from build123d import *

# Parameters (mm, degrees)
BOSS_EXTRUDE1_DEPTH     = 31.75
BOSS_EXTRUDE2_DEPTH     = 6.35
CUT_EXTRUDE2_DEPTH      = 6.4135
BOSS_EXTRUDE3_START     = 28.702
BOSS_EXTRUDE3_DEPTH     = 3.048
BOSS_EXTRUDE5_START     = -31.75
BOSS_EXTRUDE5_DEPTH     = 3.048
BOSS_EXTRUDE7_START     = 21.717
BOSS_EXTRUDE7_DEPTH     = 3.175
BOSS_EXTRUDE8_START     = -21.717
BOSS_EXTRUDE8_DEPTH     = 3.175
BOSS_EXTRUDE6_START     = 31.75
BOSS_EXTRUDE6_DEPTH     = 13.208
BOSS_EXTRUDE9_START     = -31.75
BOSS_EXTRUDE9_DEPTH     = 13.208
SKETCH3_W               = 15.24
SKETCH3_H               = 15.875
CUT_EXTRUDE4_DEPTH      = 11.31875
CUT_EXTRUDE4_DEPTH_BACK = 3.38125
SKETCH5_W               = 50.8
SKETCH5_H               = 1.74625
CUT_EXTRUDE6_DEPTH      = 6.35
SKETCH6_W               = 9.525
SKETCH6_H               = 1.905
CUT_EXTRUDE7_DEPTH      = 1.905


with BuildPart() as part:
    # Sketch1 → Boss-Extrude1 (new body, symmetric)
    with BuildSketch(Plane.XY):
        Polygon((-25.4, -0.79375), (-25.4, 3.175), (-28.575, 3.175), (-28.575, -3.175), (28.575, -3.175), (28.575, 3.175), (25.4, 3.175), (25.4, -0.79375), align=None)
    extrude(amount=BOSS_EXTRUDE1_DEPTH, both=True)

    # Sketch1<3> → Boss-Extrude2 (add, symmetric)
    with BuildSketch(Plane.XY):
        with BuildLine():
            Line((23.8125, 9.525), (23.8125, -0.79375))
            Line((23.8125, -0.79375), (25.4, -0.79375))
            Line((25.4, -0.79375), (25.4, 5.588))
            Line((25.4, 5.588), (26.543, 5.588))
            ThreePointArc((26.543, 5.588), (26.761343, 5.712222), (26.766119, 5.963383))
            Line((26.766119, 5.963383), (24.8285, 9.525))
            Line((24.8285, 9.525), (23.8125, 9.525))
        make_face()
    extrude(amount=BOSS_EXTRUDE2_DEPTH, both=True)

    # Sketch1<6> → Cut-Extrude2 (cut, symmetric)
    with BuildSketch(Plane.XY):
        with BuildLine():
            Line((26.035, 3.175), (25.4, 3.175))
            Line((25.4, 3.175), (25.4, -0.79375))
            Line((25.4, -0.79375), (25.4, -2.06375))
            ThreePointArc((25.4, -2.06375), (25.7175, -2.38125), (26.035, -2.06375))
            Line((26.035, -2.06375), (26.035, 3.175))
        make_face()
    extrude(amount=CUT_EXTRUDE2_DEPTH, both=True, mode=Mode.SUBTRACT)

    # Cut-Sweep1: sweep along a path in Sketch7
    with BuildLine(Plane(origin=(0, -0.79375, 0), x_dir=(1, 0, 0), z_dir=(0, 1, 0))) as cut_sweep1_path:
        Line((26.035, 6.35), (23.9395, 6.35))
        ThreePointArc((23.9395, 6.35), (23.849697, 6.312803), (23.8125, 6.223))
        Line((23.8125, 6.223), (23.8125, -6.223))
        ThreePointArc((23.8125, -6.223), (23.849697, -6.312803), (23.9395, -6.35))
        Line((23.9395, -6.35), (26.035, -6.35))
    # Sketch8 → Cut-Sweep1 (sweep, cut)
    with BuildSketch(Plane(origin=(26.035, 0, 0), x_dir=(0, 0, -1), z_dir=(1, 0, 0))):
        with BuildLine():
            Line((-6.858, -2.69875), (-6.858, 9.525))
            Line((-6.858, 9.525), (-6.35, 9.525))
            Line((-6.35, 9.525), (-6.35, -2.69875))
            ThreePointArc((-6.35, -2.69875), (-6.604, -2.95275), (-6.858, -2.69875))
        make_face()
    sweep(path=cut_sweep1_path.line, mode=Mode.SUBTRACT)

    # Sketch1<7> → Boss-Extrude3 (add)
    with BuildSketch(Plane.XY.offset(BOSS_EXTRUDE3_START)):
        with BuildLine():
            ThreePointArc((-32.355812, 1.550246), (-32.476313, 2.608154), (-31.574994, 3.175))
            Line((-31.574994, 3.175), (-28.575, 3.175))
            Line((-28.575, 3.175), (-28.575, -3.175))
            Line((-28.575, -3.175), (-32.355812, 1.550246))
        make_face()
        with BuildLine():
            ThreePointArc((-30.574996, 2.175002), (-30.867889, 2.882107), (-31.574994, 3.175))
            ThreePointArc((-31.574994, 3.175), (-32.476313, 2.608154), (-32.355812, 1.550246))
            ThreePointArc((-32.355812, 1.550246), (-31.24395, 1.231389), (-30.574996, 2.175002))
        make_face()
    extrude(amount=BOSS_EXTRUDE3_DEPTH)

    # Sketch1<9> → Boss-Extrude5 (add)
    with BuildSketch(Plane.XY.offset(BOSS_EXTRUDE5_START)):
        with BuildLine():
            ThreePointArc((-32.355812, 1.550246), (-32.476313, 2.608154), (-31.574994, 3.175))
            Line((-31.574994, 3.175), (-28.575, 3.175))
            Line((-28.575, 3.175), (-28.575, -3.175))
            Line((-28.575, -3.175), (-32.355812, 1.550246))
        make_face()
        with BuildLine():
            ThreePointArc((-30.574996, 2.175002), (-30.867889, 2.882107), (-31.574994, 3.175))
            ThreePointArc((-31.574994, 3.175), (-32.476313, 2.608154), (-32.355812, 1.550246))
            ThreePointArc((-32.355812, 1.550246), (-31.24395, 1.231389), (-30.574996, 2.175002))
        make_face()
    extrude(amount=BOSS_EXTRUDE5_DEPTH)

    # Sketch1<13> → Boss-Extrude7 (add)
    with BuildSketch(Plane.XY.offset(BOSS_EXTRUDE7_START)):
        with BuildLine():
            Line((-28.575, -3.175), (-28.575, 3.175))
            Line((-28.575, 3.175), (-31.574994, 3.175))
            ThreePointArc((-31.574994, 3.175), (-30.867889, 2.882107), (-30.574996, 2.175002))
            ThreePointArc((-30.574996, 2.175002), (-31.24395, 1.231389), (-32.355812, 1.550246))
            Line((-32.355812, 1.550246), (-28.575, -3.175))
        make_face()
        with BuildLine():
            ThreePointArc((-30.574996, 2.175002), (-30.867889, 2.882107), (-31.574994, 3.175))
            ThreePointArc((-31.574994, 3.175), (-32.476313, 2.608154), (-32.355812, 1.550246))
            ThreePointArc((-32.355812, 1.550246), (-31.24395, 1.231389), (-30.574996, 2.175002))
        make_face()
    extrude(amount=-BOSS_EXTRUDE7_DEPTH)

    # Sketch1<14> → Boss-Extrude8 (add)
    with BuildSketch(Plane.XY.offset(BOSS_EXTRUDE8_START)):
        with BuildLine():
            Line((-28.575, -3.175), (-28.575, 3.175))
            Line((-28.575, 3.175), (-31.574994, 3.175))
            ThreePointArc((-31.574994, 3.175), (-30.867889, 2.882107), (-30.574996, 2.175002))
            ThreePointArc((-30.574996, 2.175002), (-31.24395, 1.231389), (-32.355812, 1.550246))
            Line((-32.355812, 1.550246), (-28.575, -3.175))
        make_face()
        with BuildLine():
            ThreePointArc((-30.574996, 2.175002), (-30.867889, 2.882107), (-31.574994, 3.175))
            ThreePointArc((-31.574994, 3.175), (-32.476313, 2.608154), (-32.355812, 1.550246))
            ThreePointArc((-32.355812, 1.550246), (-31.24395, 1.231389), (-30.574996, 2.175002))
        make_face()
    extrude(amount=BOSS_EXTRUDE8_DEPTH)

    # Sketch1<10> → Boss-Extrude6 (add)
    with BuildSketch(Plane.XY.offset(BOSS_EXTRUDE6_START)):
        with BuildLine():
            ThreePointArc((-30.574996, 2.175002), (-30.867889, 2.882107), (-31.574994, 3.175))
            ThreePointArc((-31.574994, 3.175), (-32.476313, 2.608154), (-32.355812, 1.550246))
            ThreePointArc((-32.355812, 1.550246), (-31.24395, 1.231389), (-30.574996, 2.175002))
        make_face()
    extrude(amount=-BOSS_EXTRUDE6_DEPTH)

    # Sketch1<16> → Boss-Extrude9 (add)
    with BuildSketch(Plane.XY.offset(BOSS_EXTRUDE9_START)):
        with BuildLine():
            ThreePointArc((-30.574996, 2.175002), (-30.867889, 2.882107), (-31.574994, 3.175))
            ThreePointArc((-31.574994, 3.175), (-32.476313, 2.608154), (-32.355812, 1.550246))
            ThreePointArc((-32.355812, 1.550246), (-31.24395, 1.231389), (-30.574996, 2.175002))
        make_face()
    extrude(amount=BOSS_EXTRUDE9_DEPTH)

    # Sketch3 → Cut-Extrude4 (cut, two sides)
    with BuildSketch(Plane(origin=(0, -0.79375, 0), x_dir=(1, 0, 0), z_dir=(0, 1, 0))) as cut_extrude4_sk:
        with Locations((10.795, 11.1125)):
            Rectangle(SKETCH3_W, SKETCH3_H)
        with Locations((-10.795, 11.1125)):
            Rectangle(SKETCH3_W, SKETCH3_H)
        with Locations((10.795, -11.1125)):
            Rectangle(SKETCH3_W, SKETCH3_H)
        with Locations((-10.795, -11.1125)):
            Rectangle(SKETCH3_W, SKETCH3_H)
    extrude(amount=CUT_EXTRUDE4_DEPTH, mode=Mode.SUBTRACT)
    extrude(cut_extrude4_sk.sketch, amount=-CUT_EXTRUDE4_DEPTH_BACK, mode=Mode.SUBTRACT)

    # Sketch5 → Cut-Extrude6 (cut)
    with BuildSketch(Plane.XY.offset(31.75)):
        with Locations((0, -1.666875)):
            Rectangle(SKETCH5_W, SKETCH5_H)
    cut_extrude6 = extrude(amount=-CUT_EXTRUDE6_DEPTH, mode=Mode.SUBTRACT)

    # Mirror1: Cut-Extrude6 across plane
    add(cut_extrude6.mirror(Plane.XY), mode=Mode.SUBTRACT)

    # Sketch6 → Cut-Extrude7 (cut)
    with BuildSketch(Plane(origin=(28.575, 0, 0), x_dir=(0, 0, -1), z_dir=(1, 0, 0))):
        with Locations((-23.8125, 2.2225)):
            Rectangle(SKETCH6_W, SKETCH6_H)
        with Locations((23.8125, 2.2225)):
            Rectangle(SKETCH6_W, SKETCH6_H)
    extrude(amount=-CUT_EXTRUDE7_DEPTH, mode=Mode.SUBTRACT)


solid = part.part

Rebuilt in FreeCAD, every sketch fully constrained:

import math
import FreeCAD as App
import Part
import Sketcher
Q = App.Units.Quantity


def add_polygon(sketch, points):
    """Adds a closed chain of lines whose ends are joined by coincident constraints."""
    first, n = sketch.GeometryCount, len(points)
    for a, b in zip(points, points[1:] + points[:1]):
        sketch.addGeometry(Part.LineSegment(App.Vector(*a, 0), App.Vector(*b, 0)), False)
    for i in range(n):
        sketch.addConstraint(Sketcher.Constraint("Coincident", first + i, 2, first + (i + 1) % n, 1))

doc = App.newDocument("Part")
body = doc.addObject("PartDesign::Body", "Body")

sketch1 = body.newObject("Sketcher::SketchObject", "Sketch")
sketch1.AttachmentSupport = (doc.getObject("XY_Plane"), [""])
sketch1.MapMode = "FlatFace"
add_polygon(sketch1, [(-25.4, -0.8), (-25.4, 3.2), (-28.6, 3.2), (-28.6, -3.2), (28.6, -3.2), (28.6, 3.2), (25.4, 3.2), (25.4, -0.8)])
sketch1.addConstraint([
    Sketcher.Constraint("Vertical", 0),
    Sketcher.Constraint("Horizontal", 1),
    Sketcher.Constraint("Vertical", 2),
    Sketcher.Constraint("Horizontal", 3),
    Sketcher.Constraint("Vertical", 4),
    Sketcher.Constraint("Horizontal", 5),
    Sketcher.Constraint("Vertical", 6),
    Sketcher.Constraint("Horizontal", 7),
    Sketcher.Constraint("Symmetric", 1, 2, 3, 2, -1, 1),
    Sketcher.Constraint("Symmetric", 0, 2, 5, 2, -2),
    Sketcher.Constraint("DistanceX", 7, 2, 7, 1, Q("2 in")),
    Sketcher.Constraint("DistanceX", 3, 1, 3, 2, Q("2.25 in")),
    Sketcher.Constraint("DistanceY", 2, 2, 2, 1, Q("0.25 in")),
    Sketcher.Constraint("DistanceY", 0, 1, 0, 2, Q("0.15625 in")),
])
pad1 = body.newObject("PartDesign::Pad", "Pad")
pad1.Profile = sketch1
pad1.Length = Q("2.5 in")
pad1.Midplane = True

sketch2 = body.newObject("Sketcher::SketchObject", "Sketch001")
sketch2.AttachmentSupport = (doc.getObject("XY_Plane"), [""])
sketch2.MapMode = "FlatFace"
sketch2.addGeometry([
    Part.LineSegment(App.Vector(23.81, 9.53, 0), App.Vector(23.81, -0.79, 0)),
    Part.LineSegment(App.Vector(23.81, -0.79, 0), App.Vector(25.4, -0.79, 0)),
    Part.LineSegment(App.Vector(25.4, -0.79, 0), App.Vector(25.4, 5.59, 0)),
    Part.LineSegment(App.Vector(25.4, 5.59, 0), App.Vector(26.54, 5.59, 0)),
    Part.ArcOfCircle(Part.Circle(App.Vector(26.54, 5.84, 0), App.Vector(0, 0, 1), 0.25), math.radians(-90), math.radians(29)),
    Part.LineSegment(App.Vector(26.77, 5.96, 0), App.Vector(24.83, 9.53, 0)),
    Part.LineSegment(App.Vector(24.83, 9.53, 0), App.Vector(23.81, 9.53, 0)),
], False)
sketch2.addConstraint([
    Sketcher.Constraint("Coincident", 0, 2, 1, 1),
    Sketcher.Constraint("Coincident", 1, 2, 2, 1),
    Sketcher.Constraint("Coincident", 2, 2, 3, 1),
    Sketcher.Constraint("Tangent", 3, 2, 4, 1),
    Sketcher.Constraint("Tangent", 4, 2, 5, 1),
    Sketcher.Constraint("Coincident", 5, 2, 6, 1),
    Sketcher.Constraint("Coincident", 6, 2, 0, 1),
    Sketcher.Constraint("Vertical", 0),
    Sketcher.Constraint("Horizontal", 1),
    Sketcher.Constraint("Vertical", 2),
    Sketcher.Constraint("Horizontal", 3),
    Sketcher.Constraint("Horizontal", 6),
    Sketcher.Constraint("Radius", 4, Q("0.01 in")),
    Sketcher.Constraint("DistanceX", -1, 1, 1, 2, Q("1 in")),
    Sketcher.Constraint("DistanceX", 6, 2, 6, 1, Q("0.04 in")),
    Sketcher.Constraint("DistanceX", 1, 1, 1, 2, Q("0.0625 in")),
    Sketcher.Constraint("DistanceX", 3, 1, 3, 2, Q("0.045 in")),
    Sketcher.Constraint("DistanceY", 0, 2, 0, 1, Q("0.40625 in")),
    Sketcher.Constraint("DistanceY", -1, 1, 4, 3, Q("0.23 in")),
    Sketcher.Constraint("DistanceY", 0, 2, -1, 1, Q("0.03125 in")),
])
pad2 = body.newObject("PartDesign::Pad", "Pad001")
pad2.Profile = sketch2
pad2.Length = Q("0.5 in")
pad2.Midplane = True

sketch3 = body.newObject("Sketcher::SketchObject", "Sketch002")
sketch3.AttachmentSupport = (doc.getObject("XY_Plane"), [""])
sketch3.MapMode = "FlatFace"
sketch3.addGeometry([
    Part.LineSegment(App.Vector(26.04, 3.17, 0), App.Vector(25.4, 3.17, 0)),
    Part.LineSegment(App.Vector(25.4, 3.17, 0), App.Vector(25.4, -2.06, 0)),
    Part.ArcOfCircle(Part.Circle(App.Vector(25.72, -2.06, 0), App.Vector(0, 0, 1), 0.32), math.radians(180), math.radians(360)),
    Part.LineSegment(App.Vector(26.04, -2.06, 0), App.Vector(26.04, 3.17, 0)),
], False)
sketch3.addConstraint([
    Sketcher.Constraint("Coincident", 0, 2, 1, 1),
    Sketcher.Constraint("Tangent", 1, 2, 2, 1),
    Sketcher.Constraint("Tangent", 2, 2, 3, 1),
    Sketcher.Constraint("Coincident", 3, 2, 0, 1),
    Sketcher.Constraint("Horizontal", 0),
    Sketcher.Constraint("Vertical", 1),
    Sketcher.Constraint("Vertical", 3),
    Sketcher.Constraint("DistanceX", -1, 1, 0, 2, Q("1 in")),
    Sketcher.Constraint("Radius", 2, Q("0.0125 in")),
    Sketcher.Constraint("DistanceY", -1, 1, 0, 2, Q("0.125 in")),
    Sketcher.Constraint("DistanceY", 1, 2, 1, 1, Q("5.23875 mm")),
])
pocket1 = body.newObject("PartDesign::Pocket", "Pocket")
pocket1.Profile = sketch3
pocket1.Length = Q("0.505 in")
pocket1.Midplane = True

sketch4 = body.newObject("Sketcher::SketchObject", "Sketch003")
sketch4.AttachmentSupport = (doc.getObject("YZ_Plane"), [""])
sketch4.MapMode = "FlatFace"
sketch4.AttachmentOffset = App.Placement(App.Vector(0, 0, 1.025 * 25.4), App.Rotation())
sketch4.addGeometry([
    Part.LineSegment(App.Vector(9.53, 6.86, 0), App.Vector(-2.7, 6.86, 0)),
    Part.ArcOfCircle(Part.Circle(App.Vector(-2.7, 6.6, 0), App.Vector(0, 0, 1), 0.25), math.radians(90), math.radians(270)),
    Part.LineSegment(App.Vector(-2.7, 6.35, 0), App.Vector(9.53, 6.35, 0)),
    Part.LineSegment(App.Vector(9.53, 6.35, 0), App.Vector(9.53, 6.86, 0)),
], False)
sketch4.addConstraint([
    Sketcher.Constraint("Tangent", 0, 2, 1, 1),
    Sketcher.Constraint("Tangent", 1, 2, 2, 1),
    Sketcher.Constraint("Coincident", 2, 2, 3, 1),
    Sketcher.Constraint("Coincident", 3, 2, 0, 1),
    Sketcher.Constraint("Horizontal", 0),
    Sketcher.Constraint("Horizontal", 2),
    Sketcher.Constraint("Vertical", 3),
    Sketcher.Constraint("Radius", 1, Q("0.01 in")),
    Sketcher.Constraint("DistanceY", -1, 1, 1, 3, Q("0.26 in")),
    Sketcher.Constraint("DistanceX", -1, 1, 2, 2, Q("0.375 in")),
    Sketcher.Constraint("DistanceX", 0, 2, 0, 1, Q("12.22375 mm")),
])

sketch5 = body.newObject("Sketcher::SketchObject", "Sketch004")
sketch5.AttachmentSupport = (doc.getObject("XZ_Plane"), [""])
sketch5.MapMode = "FlatFace"
sketch5.AttachmentOffset = App.Placement(App.Vector(0, 0, 0.03125 * 25.4), App.Rotation())
sketch5.addGeometry([
    Part.LineSegment(App.Vector(26.04, -6.35, 0), App.Vector(23.94, -6.35, 0)),
    Part.ArcOfCircle(Part.Circle(App.Vector(23.94, -6.22, 0), App.Vector(0, 0, 1), 0.13), math.radians(180), math.radians(270)),
    Part.LineSegment(App.Vector(23.81, -6.22, 0), App.Vector(23.81, 6.22, 0)),
    Part.ArcOfCircle(Part.Circle(App.Vector(23.94, 6.22, 0), App.Vector(0, 0, 1), 0.13), math.radians(90), math.radians(180)),
    Part.LineSegment(App.Vector(23.94, 6.35, 0), App.Vector(26.04, 6.35, 0)),
], False)
sketch5.addConstraint([
    Sketcher.Constraint("Coincident", 0, 2, 1, 2),
    Sketcher.Constraint("Coincident", 1, 1, 2, 1),
    Sketcher.Constraint("Coincident", 2, 2, 3, 2),
    Sketcher.Constraint("Coincident", 3, 1, 4, 1),
    Sketcher.Constraint("Horizontal", 0),
    Sketcher.Constraint("Vertical", 2),
    Sketcher.Constraint("Horizontal", 4),
    Sketcher.Constraint("Equal", 1, 3),
    Sketcher.Constraint("Symmetric", 0, 2, 3, 1, -1),
    Sketcher.Constraint("Horizontal", 3, 3, 2, 2),
    Sketcher.Constraint("Vertical", 3, 3, 0, 2),
    Sketcher.Constraint("Vertical", 0, 1, 4, 2),
    Sketcher.Constraint("Radius", 1, Q("0.0049999 in")),
    Sketcher.Constraint("DistanceY", 2, 1, 2, 2, Q("0.49 in")),
    Sketcher.Constraint("DistanceY", 0, 2, 3, 1, Q("0.5 in")),
    Sketcher.Constraint("DistanceX", 0, 2, 0, 1, Q("0.0825 in")),
    Sketcher.Constraint("DistanceX", -1, 1, 0, 1, Q("1.025 in")),
])
doc.recompute()

subtractivepipe = body.newObject("PartDesign::SubtractivePipe", "SubtractivePipe")
subtractivepipe.Profile = sketch4
subtractivepipe.Spine = (sketch5, ["Edge1", "Edge2", "Edge3", "Edge4", "Edge5"])

sketch6 = body.newObject("Sketcher::SketchObject", "Sketch005")
sketch6.AttachmentSupport = (doc.getObject("XY_Plane"), [""])
sketch6.MapMode = "FlatFace"
sketch6.AttachmentOffset = App.Placement(App.Vector(0, 0, 1.13 * 25.4), App.Rotation())
sketch6.addGeometry([
    Part.ArcOfCircle(Part.Circle(App.Vector(-31.6, 2.2, 0), App.Vector(0, 0, 1), 1), math.radians(90), math.radians(219)),
    Part.LineSegment(App.Vector(-32.4, 1.6, 0), App.Vector(-28.6, -3.2, 0)),
    Part.LineSegment(App.Vector(-28.6, -3.2, 0), App.Vector(-28.6, 3.2, 0)),
    Part.LineSegment(App.Vector(-28.6, 3.2, 0), App.Vector(-31.6, 3.2, 0)),
], False)
sketch6.addConstraint([
    Sketcher.Constraint("Tangent", 0, 2, 1, 1),
    Sketcher.Constraint("Coincident", 1, 2, 2, 1),
    Sketcher.Constraint("Coincident", 2, 2, 3, 1),
    Sketcher.Constraint("Tangent", 3, 2, 0, 1),
    Sketcher.Constraint("Vertical", 2),
    Sketcher.Constraint("Horizontal", 3),
    Sketcher.Constraint("DistanceY", 2, 1, 2, 2, Q("0.25 in")),
    Sketcher.Constraint("Radius", 0, Q("0.999998 mm")),
    Sketcher.Constraint("DistanceX", 1, 2, -1, 1, Q("1.125 in")),
    Sketcher.Constraint("DistanceY", 1, 2, -1, 1, Q("0.125 in")),
    Sketcher.Constraint("Distance", 1, Q("6.051652 mm")),
])
pad3 = body.newObject("PartDesign::Pad", "Pad002")
pad3.Profile = sketch6
pad3.Length = Q("0.12 in")

sketch7 = body.newObject("Sketcher::SketchObject", "Sketch006")
sketch7.AttachmentSupport = (doc.getObject("XY_Plane"), [""])
sketch7.MapMode = "FlatFace"
sketch7.AttachmentOffset = App.Placement(App.Vector(0, 0, -1.25 * 25.4), App.Rotation())
sketch7.addGeometry([
    Part.ArcOfCircle(Part.Circle(App.Vector(-31.6, 2.2, 0), App.Vector(0, 0, 1), 1), math.radians(90), math.radians(219)),
    Part.LineSegment(App.Vector(-32.4, 1.6, 0), App.Vector(-28.6, -3.2, 0)),
    Part.LineSegment(App.Vector(-28.6, -3.2, 0), App.Vector(-28.6, 3.2, 0)),
    Part.LineSegment(App.Vector(-28.6, 3.2, 0), App.Vector(-31.6, 3.2, 0)),
], False)
sketch7.addConstraint([
    Sketcher.Constraint("Tangent", 0, 2, 1, 1),
    Sketcher.Constraint("Coincident", 1, 2, 2, 1),
    Sketcher.Constraint("Coincident", 2, 2, 3, 1),
    Sketcher.Constraint("Tangent", 3, 2, 0, 1),
    Sketcher.Constraint("Vertical", 2),
    Sketcher.Constraint("Horizontal", 3),
    Sketcher.Constraint("DistanceY", 2, 1, 2, 2, Q("0.25 in")),
    Sketcher.Constraint("Radius", 0, Q("0.999998 mm")),
    Sketcher.Constraint("DistanceX", 1, 2, -1, 1, Q("1.125 in")),
    Sketcher.Constraint("DistanceY", 1, 2, -1, 1, Q("0.125 in")),
    Sketcher.Constraint("Distance", 1, Q("6.051652 mm")),
])
pad4 = body.newObject("PartDesign::Pad", "Pad003")
pad4.Profile = sketch7
pad4.Length = Q("0.12 in")

sketch8 = body.newObject("Sketcher::SketchObject", "Sketch007")
sketch8.AttachmentSupport = (doc.getObject("XY_Plane"), [""])
sketch8.MapMode = "FlatFace"
sketch8.AttachmentOffset = App.Placement(App.Vector(0, 0, 0.855 * 25.4), App.Rotation())
sketch8.addGeometry([
    Part.LineSegment(App.Vector(-28.6, -3.2, 0), App.Vector(-28.6, 3.2, 0)),
    Part.LineSegment(App.Vector(-28.6, 3.2, 0), App.Vector(-31.6, 3.2, 0)),
    Part.ArcOfCircle(Part.Circle(App.Vector(-31.6, 2.2, 0), App.Vector(0, 0, 1), 1), math.radians(90), math.radians(219)),
    Part.LineSegment(App.Vector(-32.4, 1.6, 0), App.Vector(-28.6, -3.2, 0)),
], False)
sketch8.addConstraint([
    Sketcher.Constraint("Coincident", 0, 2, 1, 1),
    Sketcher.Constraint("Tangent", 1, 2, 2, 1),
    Sketcher.Constraint("Tangent", 2, 2, 3, 1),
    Sketcher.Constraint("Coincident", 3, 2, 0, 1),
    Sketcher.Constraint("Vertical", 0),
    Sketcher.Constraint("Horizontal", 1),
    Sketcher.Constraint("DistanceY", 0, 1, 0, 2, Q("0.25 in")),
    Sketcher.Constraint("Radius", 2, Q("0.999998 mm")),
    Sketcher.Constraint("DistanceX", 0, 2, -1, 1, Q("1.125 in")),
    Sketcher.Constraint("DistanceY", -1, 1, 0, 2, Q("0.125 in")),
    Sketcher.Constraint("Distance", 3, Q("6.051652 mm")),
])
pad5 = body.newObject("PartDesign::Pad", "Pad004")
pad5.Profile = sketch8
pad5.Length = Q("0.125 in")
pad5.Reversed = True

sketch9 = body.newObject("Sketcher::SketchObject", "Sketch008")
sketch9.AttachmentSupport = (doc.getObject("XY_Plane"), [""])
sketch9.MapMode = "FlatFace"
sketch9.AttachmentOffset = App.Placement(App.Vector(0, 0, -0.855 * 25.4), App.Rotation())
sketch9.addGeometry([
    Part.LineSegment(App.Vector(-28.6, -3.2, 0), App.Vector(-28.6, 3.2, 0)),
    Part.LineSegment(App.Vector(-28.6, 3.2, 0), App.Vector(-31.6, 3.2, 0)),
    Part.ArcOfCircle(Part.Circle(App.Vector(-31.6, 2.2, 0), App.Vector(0, 0, 1), 1), math.radians(90), math.radians(219)),
    Part.LineSegment(App.Vector(-32.4, 1.6, 0), App.Vector(-28.6, -3.2, 0)),
], False)
sketch9.addConstraint([
    Sketcher.Constraint("Coincident", 0, 2, 1, 1),
    Sketcher.Constraint("Tangent", 1, 2, 2, 1),
    Sketcher.Constraint("Tangent", 2, 2, 3, 1),
    Sketcher.Constraint("Coincident", 3, 2, 0, 1),
    Sketcher.Constraint("Vertical", 0),
    Sketcher.Constraint("Horizontal", 1),
    Sketcher.Constraint("DistanceY", 0, 1, 0, 2, Q("0.25 in")),
    Sketcher.Constraint("Radius", 2, Q("0.999998 mm")),
    Sketcher.Constraint("DistanceX", 0, 2, -1, 1, Q("1.125 in")),
    Sketcher.Constraint("DistanceY", -1, 1, 0, 2, Q("0.125 in")),
    Sketcher.Constraint("Distance", 3, Q("6.051652 mm")),
])
pad6 = body.newObject("PartDesign::Pad", "Pad005")
pad6.Profile = sketch9
pad6.Length = Q("0.125 in")

sketch10 = body.newObject("Sketcher::SketchObject", "Sketch009")
sketch10.AttachmentSupport = (doc.getObject("XY_Plane"), [""])
sketch10.MapMode = "FlatFace"
sketch10.AttachmentOffset = App.Placement(App.Vector(0, 0, 1.25 * 25.4), App.Rotation())
sketch10.addGeometry([
    Part.ArcOfCircle(Part.Circle(App.Vector(-31.6, 2.2, 0), App.Vector(0, 0, 1), 1), math.radians(0), math.radians(90)),
    Part.ArcOfCircle(Part.Circle(App.Vector(-31.6, 2.2, 0), App.Vector(0, 0, 1), 1), math.radians(90), math.radians(219)),
    Part.ArcOfCircle(Part.Circle(App.Vector(-31.6, 2.2, 0), App.Vector(0, 0, 1), 1), math.radians(-141), math.radians(0)),
], False)
sketch10.addConstraint([
    Sketcher.Constraint("Tangent", 0, 2, 1, 1),
    Sketcher.Constraint("Tangent", 1, 2, 2, 1),
    Sketcher.Constraint("Tangent", 2, 2, 0, 1),
    Sketcher.Constraint("Horizontal", 1, 3, 2, 2),
    Sketcher.Constraint("Vertical", 2, 3, 0, 2),
    Sketcher.Constraint("Radius", 0, Q("0.999999 mm")),
    Sketcher.Constraint("DistanceY", -1, 1, 0, 2, Q("0.125 in")),
    Sketcher.Constraint("DistanceX", 1, 2, -1, 1, Q("32.355812 mm")),
    Sketcher.Constraint("DistanceX", 0, 3, -1, 1, Q("31.574995 mm")),
])
pad7 = body.newObject("PartDesign::Pad", "Pad006")
pad7.Profile = sketch10
pad7.Length = Q("0.52 in")
pad7.Reversed = True

sketch11 = body.newObject("Sketcher::SketchObject", "Sketch010")
sketch11.AttachmentSupport = (doc.getObject("XY_Plane"), [""])
sketch11.MapMode = "FlatFace"
sketch11.AttachmentOffset = App.Placement(App.Vector(0, 0, -1.25 * 25.4), App.Rotation())
sketch11.addGeometry([
    Part.ArcOfCircle(Part.Circle(App.Vector(-31.6, 2.2, 0), App.Vector(0, 0, 1), 1), math.radians(0), math.radians(90)),
    Part.ArcOfCircle(Part.Circle(App.Vector(-31.6, 2.2, 0), App.Vector(0, 0, 1), 1), math.radians(90), math.radians(219)),
    Part.ArcOfCircle(Part.Circle(App.Vector(-31.6, 2.2, 0), App.Vector(0, 0, 1), 1), math.radians(-141), math.radians(0)),
], False)
sketch11.addConstraint([
    Sketcher.Constraint("Tangent", 0, 2, 1, 1),
    Sketcher.Constraint("Tangent", 1, 2, 2, 1),
    Sketcher.Constraint("Tangent", 2, 2, 0, 1),
    Sketcher.Constraint("Horizontal", 1, 3, 2, 2),
    Sketcher.Constraint("Vertical", 2, 3, 0, 2),
    Sketcher.Constraint("Radius", 0, Q("0.999999 mm")),
    Sketcher.Constraint("DistanceY", -1, 1, 0, 2, Q("0.125 in")),
    Sketcher.Constraint("DistanceX", 1, 2, -1, 1, Q("32.355812 mm")),
    Sketcher.Constraint("DistanceX", 0, 3, -1, 1, Q("31.574995 mm")),
])
pad8 = body.newObject("PartDesign::Pad", "Pad007")
pad8.Profile = sketch11
pad8.Length = Q("0.52 in")

sketch12 = body.newObject("Sketcher::SketchObject", "Sketch011")
sketch12.AttachmentSupport = (doc.getObject("XZ_Plane"), [""])
sketch12.MapMode = "FlatFace"
sketch12.AttachmentOffset = App.Placement(App.Vector(0, 0, 0.03125 * 25.4), App.Rotation())
add_polygon(sketch12, [(3, -19), (3, -3), (18, -3), (18, -19)])
add_polygon(sketch12, [(-18, -19), (-18, -3), (-3, -3), (-3, -19)])
add_polygon(sketch12, [(3, 3), (3, 19), (18, 19), (18, 3)])
add_polygon(sketch12, [(-18, 3), (-18, 19), (-3, 19), (-3, 3)])
sketch12.addConstraint([
    Sketcher.Constraint("Vertical", 0),
    Sketcher.Constraint("Horizontal", 1),
    Sketcher.Constraint("Vertical", 2),
    Sketcher.Constraint("Horizontal", 3),
    Sketcher.Constraint("Vertical", 4),
    Sketcher.Constraint("Horizontal", 5),
    Sketcher.Constraint("Vertical", 6),
    Sketcher.Constraint("Horizontal", 7),
    Sketcher.Constraint("Vertical", 8),
    Sketcher.Constraint("Horizontal", 9),
    Sketcher.Constraint("Vertical", 10),
    Sketcher.Constraint("Horizontal", 11),
    Sketcher.Constraint("Vertical", 12),
    Sketcher.Constraint("Horizontal", 13),
    Sketcher.Constraint("Vertical", 14),
    Sketcher.Constraint("Horizontal", 15),
    Sketcher.Constraint("Symmetric", 6, 2, 8, 2, -1, 1),
    Sketcher.Constraint("Symmetric", 4, 2, 10, 2, -1, 1),
    Sketcher.Constraint("Symmetric", 2, 2, 12, 2, -1, 1),
    Sketcher.Constraint("Symmetric", 0, 2, 14, 2, -1, 1),
    Sketcher.Constraint("Symmetric", 1, 2, 4, 2, -2),
    Sketcher.Constraint("Symmetric", 3, 2, 6, 2, -2),
    Sketcher.Constraint("DistanceX", 1, 1, 1, 2, Q("0.6 in")),
    Sketcher.Constraint("DistanceY", 3, 2, 8, 2, Q("1.5 in")),
    Sketcher.Constraint("DistanceY", 0, 1, 0, 2, Q("0.625 in")),
    Sketcher.Constraint("DistanceX", 4, 2, 0, 2, Q("0.85 in")),
])
pocket2 = body.newObject("PartDesign::Pocket", "Pocket001")
pocket2.Profile = sketch12
pocket2.Type = "ThroughAll"
pocket2.Midplane = True

sketch13 = body.newObject("Sketcher::SketchObject", "Sketch012")
sketch13.AttachmentSupport = (doc.getObject("XY_Plane"), [""])
sketch13.MapMode = "FlatFace"
sketch13.AttachmentOffset = App.Placement(App.Vector(0, 0, 1.25 * 25.4), App.Rotation())
add_polygon(sketch13, [(-25.4, -0.8), (-25.4, -2.5), (25.4, -2.5), (25.4, -0.8)])
sketch13.addConstraint([
    Sketcher.Constraint("Vertical", 0),
    Sketcher.Constraint("Horizontal", 1),
    Sketcher.Constraint("Vertical", 2),
    Sketcher.Constraint("Horizontal", 3),
    Sketcher.Constraint("DistanceX", 1, 1, 1, 2, Q("2 in")),
    Sketcher.Constraint("DistanceX", 0, 2, -1, 1, Q("1 in")),
    Sketcher.Constraint("DistanceY", 0, 2, -1, 1, Q("0.1 in")),
    Sketcher.Constraint("DistanceY", 2, 2, -1, 1, Q("0.03125 in")),
])
pocket3 = body.newObject("PartDesign::Pocket", "Pocket002")
pocket3.Profile = sketch13
pocket3.Length = Q("0.25 in")
doc.recompute()

mirrored = body.newObject("PartDesign::Mirrored", "Mirrored")
mirrored.Originals = [pocket3]
mirrored.MirrorPlane = (doc.getObject("XY_Plane"), [""])
body.Tip = mirrored

sketch14 = body.newObject("Sketcher::SketchObject", "Sketch013")
sketch14.AttachmentSupport = (doc.getObject("YZ_Plane"), [""])
sketch14.MapMode = "FlatFace"
sketch14.AttachmentOffset = App.Placement(App.Vector(0, 0, 1.125 * 25.4), App.Rotation())
add_polygon(sketch14, [(3.2, 28.6), (1.3, 28.6), (1.3, 19.1), (3.2, 19.1)])
add_polygon(sketch14, [(3.2, -19.1), (1.3, -19.1), (1.3, -28.6), (3.2, -28.6)])
sketch14.addConstraint([
    Sketcher.Constraint("Horizontal", 0),
    Sketcher.Constraint("Vertical", 1),
    Sketcher.Constraint("Horizontal", 2),
    Sketcher.Constraint("Vertical", 3),
    Sketcher.Constraint("Horizontal", 4),
    Sketcher.Constraint("Vertical", 5),
    Sketcher.Constraint("Horizontal", 6),
    Sketcher.Constraint("Vertical", 7),
    Sketcher.Constraint("Symmetric", 1, 2, 4, 2, -1),
    Sketcher.Constraint("Symmetric", 3, 2, 6, 2, -1),
    Sketcher.Constraint("DistanceY", 4, 2, 1, 2, Q("1.5 in")),
    Sketcher.Constraint("DistanceX", 0, 2, 0, 1, Q("0.075 in")),
    Sketcher.Constraint("DistanceY", 1, 2, 1, 1, Q("0.375 in")),
    Sketcher.Constraint("DistanceX", -1, 1, 0, 2, Q("0.05 in")),
])
pocket4 = body.newObject("PartDesign::Pocket", "Pocket003")
pocket4.Profile = sketch14
pocket4.Length = Q("0.075 in")

doc.recompute()
